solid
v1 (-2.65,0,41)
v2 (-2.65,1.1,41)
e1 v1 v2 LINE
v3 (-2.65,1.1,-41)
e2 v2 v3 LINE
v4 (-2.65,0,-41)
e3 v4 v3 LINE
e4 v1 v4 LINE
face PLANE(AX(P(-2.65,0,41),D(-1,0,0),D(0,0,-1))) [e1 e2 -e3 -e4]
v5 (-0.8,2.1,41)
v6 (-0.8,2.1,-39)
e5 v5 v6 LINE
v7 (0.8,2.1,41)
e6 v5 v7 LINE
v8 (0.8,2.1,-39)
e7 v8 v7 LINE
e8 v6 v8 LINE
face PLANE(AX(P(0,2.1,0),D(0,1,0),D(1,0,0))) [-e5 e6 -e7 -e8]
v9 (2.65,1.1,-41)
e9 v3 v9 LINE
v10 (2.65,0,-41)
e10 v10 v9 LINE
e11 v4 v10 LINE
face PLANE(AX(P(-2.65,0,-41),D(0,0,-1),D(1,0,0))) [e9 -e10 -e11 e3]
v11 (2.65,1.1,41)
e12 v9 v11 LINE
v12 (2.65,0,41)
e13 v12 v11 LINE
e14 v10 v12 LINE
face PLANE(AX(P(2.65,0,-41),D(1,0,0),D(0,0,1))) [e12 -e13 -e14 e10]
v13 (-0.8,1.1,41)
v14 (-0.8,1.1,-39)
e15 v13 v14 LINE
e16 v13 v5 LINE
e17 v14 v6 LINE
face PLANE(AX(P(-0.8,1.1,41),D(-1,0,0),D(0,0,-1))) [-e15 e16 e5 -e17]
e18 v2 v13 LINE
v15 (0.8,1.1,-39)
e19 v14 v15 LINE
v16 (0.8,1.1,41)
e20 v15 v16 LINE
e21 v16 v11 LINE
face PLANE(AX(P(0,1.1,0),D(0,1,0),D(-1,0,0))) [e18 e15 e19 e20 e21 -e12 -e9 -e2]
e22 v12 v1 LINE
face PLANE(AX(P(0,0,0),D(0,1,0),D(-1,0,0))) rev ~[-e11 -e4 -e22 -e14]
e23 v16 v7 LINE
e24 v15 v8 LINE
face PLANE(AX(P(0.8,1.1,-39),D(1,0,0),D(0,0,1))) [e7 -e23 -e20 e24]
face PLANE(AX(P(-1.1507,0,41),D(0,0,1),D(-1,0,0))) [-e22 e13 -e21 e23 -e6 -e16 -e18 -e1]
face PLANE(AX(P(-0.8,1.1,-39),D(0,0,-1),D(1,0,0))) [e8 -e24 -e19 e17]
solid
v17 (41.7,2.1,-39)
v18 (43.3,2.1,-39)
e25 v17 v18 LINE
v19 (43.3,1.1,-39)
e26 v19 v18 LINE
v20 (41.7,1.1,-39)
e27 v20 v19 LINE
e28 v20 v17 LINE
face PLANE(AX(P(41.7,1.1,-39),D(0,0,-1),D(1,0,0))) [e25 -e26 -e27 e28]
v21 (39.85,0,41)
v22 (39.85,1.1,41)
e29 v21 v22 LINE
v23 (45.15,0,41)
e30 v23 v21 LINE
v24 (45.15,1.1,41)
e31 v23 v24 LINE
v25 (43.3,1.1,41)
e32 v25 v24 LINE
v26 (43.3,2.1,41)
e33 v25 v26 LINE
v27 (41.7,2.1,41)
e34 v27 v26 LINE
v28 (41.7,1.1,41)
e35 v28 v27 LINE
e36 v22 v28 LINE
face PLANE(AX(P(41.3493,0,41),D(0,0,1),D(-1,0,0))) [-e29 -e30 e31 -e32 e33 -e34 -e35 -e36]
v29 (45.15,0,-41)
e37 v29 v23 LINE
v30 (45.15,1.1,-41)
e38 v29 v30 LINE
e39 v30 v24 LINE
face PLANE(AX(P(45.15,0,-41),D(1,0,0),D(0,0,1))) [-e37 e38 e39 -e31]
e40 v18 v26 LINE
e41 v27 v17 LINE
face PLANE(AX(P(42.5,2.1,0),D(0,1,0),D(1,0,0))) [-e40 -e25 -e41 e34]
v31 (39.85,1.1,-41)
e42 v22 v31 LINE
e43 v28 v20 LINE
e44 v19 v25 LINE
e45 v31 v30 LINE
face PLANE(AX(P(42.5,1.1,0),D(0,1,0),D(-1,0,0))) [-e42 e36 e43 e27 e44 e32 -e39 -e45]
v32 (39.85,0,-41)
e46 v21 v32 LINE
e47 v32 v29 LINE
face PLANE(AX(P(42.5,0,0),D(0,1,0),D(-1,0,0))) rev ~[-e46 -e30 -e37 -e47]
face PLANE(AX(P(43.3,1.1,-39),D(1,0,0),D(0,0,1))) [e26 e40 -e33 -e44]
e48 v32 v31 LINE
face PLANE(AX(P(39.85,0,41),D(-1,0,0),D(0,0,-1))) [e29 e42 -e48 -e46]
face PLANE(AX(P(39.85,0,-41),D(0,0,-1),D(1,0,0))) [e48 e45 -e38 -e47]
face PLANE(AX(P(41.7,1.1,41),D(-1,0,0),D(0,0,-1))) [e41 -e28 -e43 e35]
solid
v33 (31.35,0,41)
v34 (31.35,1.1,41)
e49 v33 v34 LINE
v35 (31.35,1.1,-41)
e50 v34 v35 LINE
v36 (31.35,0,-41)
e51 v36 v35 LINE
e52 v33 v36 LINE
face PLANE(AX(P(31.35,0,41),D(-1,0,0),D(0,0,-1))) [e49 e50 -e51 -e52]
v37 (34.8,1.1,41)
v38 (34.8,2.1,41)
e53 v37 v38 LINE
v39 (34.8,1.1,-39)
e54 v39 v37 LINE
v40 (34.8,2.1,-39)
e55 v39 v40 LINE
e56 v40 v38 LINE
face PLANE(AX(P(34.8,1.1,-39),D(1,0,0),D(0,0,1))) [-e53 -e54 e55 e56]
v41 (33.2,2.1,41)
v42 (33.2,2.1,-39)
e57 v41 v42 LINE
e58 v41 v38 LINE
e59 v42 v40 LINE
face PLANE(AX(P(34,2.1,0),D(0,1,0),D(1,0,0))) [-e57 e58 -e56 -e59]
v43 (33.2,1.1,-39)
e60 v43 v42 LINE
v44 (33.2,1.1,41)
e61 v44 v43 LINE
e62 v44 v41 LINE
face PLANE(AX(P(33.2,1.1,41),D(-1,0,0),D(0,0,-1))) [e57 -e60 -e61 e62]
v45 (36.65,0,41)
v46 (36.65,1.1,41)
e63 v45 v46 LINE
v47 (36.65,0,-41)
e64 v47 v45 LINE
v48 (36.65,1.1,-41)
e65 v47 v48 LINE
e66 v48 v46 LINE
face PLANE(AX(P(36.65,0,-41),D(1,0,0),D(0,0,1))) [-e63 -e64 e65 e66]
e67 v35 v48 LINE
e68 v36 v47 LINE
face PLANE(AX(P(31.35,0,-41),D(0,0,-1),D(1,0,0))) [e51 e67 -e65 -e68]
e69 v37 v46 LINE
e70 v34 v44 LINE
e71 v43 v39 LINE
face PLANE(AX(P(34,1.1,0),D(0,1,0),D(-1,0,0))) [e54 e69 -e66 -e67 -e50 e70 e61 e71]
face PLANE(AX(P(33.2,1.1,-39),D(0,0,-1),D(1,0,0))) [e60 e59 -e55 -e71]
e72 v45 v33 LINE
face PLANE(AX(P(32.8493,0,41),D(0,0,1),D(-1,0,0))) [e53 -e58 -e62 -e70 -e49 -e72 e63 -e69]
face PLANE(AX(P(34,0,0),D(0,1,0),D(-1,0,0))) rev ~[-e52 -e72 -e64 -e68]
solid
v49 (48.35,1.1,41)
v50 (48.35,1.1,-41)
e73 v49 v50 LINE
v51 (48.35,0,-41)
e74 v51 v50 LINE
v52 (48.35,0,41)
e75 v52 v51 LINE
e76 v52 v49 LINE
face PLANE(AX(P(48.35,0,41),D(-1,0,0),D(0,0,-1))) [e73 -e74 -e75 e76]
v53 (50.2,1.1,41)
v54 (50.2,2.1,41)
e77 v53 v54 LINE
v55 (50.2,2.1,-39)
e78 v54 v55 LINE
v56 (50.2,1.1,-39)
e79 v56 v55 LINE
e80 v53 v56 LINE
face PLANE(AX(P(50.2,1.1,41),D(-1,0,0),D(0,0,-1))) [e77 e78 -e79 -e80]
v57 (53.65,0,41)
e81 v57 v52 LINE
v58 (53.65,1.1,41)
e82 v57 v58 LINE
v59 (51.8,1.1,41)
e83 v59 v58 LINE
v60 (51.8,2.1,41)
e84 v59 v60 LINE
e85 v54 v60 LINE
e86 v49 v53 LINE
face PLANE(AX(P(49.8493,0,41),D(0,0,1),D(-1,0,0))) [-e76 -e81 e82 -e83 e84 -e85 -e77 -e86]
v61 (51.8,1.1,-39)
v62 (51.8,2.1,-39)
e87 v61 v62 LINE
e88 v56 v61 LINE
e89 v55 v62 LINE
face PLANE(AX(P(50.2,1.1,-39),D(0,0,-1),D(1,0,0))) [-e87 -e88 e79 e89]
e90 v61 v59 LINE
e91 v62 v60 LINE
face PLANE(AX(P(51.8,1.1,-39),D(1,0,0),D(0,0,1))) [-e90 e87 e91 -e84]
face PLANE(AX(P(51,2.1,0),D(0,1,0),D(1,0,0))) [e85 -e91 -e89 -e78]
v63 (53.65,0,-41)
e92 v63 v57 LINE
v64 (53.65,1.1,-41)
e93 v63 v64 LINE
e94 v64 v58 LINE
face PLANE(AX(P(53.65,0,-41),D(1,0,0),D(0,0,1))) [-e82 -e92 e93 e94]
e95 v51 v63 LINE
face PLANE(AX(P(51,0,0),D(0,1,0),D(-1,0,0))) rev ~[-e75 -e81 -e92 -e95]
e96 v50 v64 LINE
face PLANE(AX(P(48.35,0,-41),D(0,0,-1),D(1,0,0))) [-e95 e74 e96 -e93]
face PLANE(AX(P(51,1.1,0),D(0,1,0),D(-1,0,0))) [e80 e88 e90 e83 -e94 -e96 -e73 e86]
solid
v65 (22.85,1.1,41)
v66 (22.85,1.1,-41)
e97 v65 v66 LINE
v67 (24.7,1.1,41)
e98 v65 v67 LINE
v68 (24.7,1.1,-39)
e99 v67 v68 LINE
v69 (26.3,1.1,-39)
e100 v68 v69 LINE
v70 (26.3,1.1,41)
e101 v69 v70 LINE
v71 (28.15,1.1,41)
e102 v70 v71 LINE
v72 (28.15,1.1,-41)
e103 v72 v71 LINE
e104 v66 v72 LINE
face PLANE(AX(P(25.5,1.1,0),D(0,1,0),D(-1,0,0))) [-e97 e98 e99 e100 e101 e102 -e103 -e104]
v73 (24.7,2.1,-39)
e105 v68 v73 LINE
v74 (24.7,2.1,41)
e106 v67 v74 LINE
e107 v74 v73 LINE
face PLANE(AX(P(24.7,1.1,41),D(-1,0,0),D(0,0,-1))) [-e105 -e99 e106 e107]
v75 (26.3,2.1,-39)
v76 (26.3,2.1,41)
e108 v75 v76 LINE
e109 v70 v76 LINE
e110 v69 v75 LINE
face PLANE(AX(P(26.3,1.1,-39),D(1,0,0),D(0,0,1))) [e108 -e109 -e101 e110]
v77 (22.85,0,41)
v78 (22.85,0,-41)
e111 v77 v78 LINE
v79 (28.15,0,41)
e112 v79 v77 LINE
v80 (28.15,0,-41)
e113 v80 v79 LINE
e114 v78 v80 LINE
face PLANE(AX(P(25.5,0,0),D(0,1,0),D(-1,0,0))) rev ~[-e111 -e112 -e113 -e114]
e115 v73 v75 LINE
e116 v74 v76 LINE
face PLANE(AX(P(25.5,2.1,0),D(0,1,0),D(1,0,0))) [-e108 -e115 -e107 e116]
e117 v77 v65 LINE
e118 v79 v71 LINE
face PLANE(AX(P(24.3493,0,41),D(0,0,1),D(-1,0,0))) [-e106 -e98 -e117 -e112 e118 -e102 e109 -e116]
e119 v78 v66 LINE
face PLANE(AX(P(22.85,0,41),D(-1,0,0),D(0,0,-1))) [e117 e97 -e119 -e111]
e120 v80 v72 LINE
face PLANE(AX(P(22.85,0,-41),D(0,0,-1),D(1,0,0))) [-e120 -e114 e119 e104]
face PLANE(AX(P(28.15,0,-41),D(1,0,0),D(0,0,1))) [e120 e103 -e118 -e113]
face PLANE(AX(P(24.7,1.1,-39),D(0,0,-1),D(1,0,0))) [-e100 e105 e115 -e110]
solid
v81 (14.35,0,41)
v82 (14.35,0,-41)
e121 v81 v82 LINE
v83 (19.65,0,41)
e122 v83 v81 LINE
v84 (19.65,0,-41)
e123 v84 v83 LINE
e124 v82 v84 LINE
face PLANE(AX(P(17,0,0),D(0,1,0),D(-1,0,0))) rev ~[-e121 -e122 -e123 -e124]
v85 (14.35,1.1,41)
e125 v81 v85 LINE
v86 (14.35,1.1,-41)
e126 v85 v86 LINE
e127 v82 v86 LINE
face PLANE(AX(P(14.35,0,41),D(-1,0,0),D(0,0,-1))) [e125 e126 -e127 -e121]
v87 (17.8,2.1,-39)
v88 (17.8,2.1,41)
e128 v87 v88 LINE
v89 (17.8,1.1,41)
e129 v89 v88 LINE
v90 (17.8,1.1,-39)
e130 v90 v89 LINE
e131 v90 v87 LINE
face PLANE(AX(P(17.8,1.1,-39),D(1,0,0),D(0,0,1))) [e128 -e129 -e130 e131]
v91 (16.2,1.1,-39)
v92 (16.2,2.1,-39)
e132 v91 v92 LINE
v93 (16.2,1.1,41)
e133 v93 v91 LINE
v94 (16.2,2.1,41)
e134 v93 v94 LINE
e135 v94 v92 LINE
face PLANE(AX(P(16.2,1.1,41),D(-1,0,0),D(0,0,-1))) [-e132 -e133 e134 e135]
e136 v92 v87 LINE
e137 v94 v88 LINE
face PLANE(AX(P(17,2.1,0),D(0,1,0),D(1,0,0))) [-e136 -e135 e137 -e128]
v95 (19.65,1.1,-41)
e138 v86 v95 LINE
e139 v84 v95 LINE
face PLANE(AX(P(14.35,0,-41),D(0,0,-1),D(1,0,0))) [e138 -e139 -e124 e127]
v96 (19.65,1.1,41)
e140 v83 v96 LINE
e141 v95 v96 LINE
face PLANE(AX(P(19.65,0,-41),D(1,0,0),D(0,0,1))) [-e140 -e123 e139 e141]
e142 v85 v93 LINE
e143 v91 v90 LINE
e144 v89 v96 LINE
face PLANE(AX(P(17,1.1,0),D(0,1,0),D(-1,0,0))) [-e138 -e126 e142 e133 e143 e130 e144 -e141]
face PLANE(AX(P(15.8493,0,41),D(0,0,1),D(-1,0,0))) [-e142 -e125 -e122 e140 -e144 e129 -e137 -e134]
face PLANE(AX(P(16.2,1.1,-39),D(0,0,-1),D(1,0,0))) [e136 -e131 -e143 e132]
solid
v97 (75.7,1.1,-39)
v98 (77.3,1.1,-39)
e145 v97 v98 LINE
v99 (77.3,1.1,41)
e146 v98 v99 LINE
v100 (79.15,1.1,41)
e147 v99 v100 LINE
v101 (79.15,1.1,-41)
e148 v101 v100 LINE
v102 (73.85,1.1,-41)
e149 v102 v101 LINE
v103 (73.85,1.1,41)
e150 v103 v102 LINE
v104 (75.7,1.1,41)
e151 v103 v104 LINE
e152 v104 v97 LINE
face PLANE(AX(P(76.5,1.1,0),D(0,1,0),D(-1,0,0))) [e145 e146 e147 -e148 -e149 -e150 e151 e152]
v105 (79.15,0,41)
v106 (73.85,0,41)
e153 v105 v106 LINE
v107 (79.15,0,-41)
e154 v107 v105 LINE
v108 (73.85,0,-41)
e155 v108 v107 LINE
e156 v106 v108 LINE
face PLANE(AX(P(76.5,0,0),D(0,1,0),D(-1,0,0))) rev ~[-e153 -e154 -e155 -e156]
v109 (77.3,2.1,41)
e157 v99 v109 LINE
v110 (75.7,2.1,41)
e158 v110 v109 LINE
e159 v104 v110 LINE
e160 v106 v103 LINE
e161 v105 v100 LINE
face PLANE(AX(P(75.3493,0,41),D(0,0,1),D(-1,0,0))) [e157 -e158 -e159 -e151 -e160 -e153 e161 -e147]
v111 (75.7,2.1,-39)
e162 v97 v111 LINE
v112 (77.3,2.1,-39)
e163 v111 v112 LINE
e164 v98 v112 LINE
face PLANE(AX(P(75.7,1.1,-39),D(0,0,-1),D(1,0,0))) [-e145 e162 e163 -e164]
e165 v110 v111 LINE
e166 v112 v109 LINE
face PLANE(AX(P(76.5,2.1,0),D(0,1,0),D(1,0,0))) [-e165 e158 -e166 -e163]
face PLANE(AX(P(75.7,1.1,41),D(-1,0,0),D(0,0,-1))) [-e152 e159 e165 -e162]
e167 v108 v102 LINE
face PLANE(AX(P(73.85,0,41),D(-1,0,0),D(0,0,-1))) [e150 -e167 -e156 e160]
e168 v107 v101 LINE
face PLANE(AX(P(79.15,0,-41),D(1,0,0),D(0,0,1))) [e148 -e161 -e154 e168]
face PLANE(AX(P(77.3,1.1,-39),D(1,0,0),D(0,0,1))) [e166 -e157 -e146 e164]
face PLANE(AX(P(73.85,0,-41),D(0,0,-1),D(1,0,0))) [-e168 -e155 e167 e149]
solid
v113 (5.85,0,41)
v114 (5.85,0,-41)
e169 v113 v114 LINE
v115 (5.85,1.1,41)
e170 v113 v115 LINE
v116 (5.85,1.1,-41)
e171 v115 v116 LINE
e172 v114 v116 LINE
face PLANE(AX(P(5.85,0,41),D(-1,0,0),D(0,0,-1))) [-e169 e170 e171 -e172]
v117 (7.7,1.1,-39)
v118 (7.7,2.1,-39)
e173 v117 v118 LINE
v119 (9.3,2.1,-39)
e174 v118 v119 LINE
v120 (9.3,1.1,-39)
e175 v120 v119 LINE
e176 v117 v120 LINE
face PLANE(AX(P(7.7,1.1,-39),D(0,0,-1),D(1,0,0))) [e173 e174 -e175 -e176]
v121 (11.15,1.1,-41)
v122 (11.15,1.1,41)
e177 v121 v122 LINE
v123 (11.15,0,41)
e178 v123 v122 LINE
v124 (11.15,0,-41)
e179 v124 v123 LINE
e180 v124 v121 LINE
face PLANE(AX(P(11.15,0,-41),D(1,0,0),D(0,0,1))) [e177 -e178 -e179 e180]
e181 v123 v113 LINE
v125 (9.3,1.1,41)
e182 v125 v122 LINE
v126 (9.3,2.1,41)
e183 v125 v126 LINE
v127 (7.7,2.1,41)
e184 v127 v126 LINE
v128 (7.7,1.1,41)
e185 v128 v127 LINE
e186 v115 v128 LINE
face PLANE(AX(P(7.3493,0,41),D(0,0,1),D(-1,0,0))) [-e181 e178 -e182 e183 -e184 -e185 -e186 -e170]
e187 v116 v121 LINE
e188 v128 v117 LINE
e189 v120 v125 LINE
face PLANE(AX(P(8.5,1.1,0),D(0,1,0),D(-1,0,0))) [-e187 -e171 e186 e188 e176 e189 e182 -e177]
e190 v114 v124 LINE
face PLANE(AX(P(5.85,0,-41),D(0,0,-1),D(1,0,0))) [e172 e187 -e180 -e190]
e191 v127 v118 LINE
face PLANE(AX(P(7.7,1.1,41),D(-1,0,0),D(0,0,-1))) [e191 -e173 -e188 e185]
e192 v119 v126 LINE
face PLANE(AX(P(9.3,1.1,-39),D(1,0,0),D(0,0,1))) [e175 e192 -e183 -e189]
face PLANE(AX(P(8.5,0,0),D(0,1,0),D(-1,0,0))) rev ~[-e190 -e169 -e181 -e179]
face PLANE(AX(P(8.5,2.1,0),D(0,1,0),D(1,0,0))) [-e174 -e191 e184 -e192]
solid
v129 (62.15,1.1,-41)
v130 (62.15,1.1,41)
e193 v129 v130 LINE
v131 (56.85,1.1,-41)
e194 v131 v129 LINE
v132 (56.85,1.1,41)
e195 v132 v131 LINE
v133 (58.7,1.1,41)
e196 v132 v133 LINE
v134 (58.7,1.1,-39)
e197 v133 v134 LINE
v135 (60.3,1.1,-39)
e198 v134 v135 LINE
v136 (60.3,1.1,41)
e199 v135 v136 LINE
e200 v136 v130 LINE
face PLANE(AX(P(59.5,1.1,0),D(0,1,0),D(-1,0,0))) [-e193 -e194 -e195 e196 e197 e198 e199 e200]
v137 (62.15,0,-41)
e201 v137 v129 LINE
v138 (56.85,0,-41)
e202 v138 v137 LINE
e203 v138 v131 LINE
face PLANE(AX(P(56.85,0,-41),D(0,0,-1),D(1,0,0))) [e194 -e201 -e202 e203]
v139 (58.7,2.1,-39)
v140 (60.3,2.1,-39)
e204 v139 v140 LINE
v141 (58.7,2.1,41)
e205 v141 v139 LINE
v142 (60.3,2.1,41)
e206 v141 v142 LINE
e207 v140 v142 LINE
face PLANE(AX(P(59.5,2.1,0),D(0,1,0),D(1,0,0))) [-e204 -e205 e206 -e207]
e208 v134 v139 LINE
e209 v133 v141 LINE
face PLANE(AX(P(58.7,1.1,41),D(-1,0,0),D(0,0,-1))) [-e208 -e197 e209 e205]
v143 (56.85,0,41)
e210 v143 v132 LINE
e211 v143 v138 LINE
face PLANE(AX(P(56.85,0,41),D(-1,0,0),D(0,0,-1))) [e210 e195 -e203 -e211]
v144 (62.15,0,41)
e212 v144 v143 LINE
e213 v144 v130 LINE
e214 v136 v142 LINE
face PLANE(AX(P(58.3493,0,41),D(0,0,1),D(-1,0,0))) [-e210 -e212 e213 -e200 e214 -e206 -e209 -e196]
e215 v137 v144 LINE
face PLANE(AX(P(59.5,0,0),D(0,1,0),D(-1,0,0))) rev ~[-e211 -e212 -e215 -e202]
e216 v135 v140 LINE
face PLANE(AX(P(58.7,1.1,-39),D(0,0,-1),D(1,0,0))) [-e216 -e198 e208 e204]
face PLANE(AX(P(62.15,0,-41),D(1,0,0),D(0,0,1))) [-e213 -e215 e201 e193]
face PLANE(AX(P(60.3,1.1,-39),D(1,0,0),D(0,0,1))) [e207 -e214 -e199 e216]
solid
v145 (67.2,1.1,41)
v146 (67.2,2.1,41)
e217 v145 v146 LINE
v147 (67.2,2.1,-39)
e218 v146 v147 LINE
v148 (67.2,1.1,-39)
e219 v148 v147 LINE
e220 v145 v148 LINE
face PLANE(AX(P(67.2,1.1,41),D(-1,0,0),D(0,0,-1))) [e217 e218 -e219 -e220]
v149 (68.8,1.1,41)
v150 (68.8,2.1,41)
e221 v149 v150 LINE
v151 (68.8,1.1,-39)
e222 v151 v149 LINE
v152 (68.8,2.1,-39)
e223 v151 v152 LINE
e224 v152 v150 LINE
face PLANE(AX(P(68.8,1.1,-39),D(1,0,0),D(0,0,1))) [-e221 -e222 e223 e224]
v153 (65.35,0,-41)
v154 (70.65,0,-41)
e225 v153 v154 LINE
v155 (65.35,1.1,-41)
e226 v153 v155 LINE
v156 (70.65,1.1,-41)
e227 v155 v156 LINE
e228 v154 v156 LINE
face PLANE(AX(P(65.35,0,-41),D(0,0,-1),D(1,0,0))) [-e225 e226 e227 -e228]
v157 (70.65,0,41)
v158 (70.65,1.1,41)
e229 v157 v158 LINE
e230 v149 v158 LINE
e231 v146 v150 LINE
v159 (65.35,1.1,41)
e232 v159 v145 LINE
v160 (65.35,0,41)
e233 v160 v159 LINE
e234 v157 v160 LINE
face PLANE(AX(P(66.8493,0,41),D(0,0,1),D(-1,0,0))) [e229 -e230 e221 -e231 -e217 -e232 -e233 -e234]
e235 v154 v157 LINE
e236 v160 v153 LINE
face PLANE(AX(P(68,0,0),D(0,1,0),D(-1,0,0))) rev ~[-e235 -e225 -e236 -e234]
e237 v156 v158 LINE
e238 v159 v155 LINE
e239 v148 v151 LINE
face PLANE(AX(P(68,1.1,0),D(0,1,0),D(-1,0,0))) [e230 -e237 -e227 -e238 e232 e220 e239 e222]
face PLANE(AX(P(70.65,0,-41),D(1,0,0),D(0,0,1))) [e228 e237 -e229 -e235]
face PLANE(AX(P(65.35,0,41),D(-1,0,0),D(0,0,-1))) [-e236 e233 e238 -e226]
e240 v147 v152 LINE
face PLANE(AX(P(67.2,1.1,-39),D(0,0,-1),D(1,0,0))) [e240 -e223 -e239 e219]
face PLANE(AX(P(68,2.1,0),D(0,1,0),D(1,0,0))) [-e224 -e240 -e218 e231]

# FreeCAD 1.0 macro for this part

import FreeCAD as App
import Part
import Sketcher

V = App.Vector
Q = App.Units.Quantity

doc = App.newDocument("Part")
body = doc.addObject("PartDesign::Body", "Body")
body.AllowCompound = True

sketch1 = body.newObject("Sketcher::SketchObject", "Sketch")
sketch1.AttachmentSupport = (doc.getObject("XZ_Plane"), [""])
sketch1.MapMode = "FlatFace"
sketch1.addGeometry([
    Part.LineSegment(V(2.65, -41, 0), V(-2.65, -41, 0)),
    Part.LineSegment(V(-2.65, -41, 0), V(-2.65, 41, 0)),
    Part.LineSegment(V(-2.65, 41, 0), V(2.65, 41, 0)),
    Part.LineSegment(V(2.65, 41, 0), V(2.65, -41, 0)),
], False)
sketch1.addConstraint([
    Sketcher.Constraint("Coincident", 0, 2, 1, 1),
    Sketcher.Constraint("Coincident", 1, 2, 2, 1),
    Sketcher.Constraint("Coincident", 2, 2, 3, 1),
    Sketcher.Constraint("Coincident", 3, 2, 0, 1),
    Sketcher.Constraint("Horizontal", 0),
    Sketcher.Constraint("Vertical", 1),
    Sketcher.Constraint("Horizontal", 2),
    Sketcher.Constraint("Vertical", 3),
    Sketcher.Constraint("Symmetric", 0, 2, 2, 2, -1, 1),
    Sketcher.Constraint("DistanceY", 1, 1, 1, 2, Q("82 mm")),
    Sketcher.Constraint("DistanceX", 0, 2, 0, 1, Q("5.3 mm")),
])
pad1 = body.newObject("PartDesign::Pad", "Pad")
pad1.Profile = sketch1
pad1.Length = 1.1
pad1.Reversed = True

sketch2 = body.newObject("Sketcher::SketchObject", "Sketch001")
sketch2.AttachmentSupport = (doc.getObject("XZ_Plane"), [""])
sketch2.MapMode = "FlatFace"
sketch2.AttachmentOffset = App.Placement(V(0, 0, -1.1), App.Rotation())
sketch2.addGeometry([
    Part.LineSegment(V(-0.8, -39, 0), V(-0.8, 41, 0)),
    Part.LineSegment(V(-0.8, 41, 0), V(0.8, 41, 0)),
    Part.LineSegment(V(0.8, 41, 0), V(0.8, -39, 0)),
    Part.LineSegment(V(0.8, -39, 0), V(-0.8, -39, 0)),
], False)
sketch2.addConstraint([
    Sketcher.Constraint("Coincident", 0, 2, 1, 1),
    Sketcher.Constraint("Coincident", 1, 2, 2, 1),
    Sketcher.Constraint("Coincident", 2, 2, 3, 1),
    Sketcher.Constraint("Coincident", 3, 2, 0, 1),
    Sketcher.Constraint("Vertical", 0),
    Sketcher.Constraint("Horizontal", 1),
    Sketcher.Constraint("Vertical", 2),
    Sketcher.Constraint("Horizontal", 3),
    Sketcher.Constraint("DistanceY", 0, 1, 0, 2, Q("80 mm")),
    Sketcher.Constraint("DistanceX", 1, 1, 1, 2, Q("1.6 mm")),
    Sketcher.Constraint("DistanceY", -1, 1, 0, 2, Q("41 mm")),
    Sketcher.Constraint("DistanceX", 0, 2, -1, 1, Q("0.8 mm")),
])
pad2 = body.newObject("PartDesign::Pad", "Pad001")
pad2.Profile = sketch2
pad2.Length = 1
pad2.Reversed = True
doc.recompute()

linearpattern = body.newObject("PartDesign::LinearPattern", "LinearPattern")
linearpattern.Originals = [pad1, pad2]
linearpattern.Direction = (doc.getObject("X_Axis"), [""])
linearpattern.Mode = "offset"
linearpattern.Offset = 8.5
linearpattern.Occurrences = 10
body.Tip = linearpattern

doc.recompute()
